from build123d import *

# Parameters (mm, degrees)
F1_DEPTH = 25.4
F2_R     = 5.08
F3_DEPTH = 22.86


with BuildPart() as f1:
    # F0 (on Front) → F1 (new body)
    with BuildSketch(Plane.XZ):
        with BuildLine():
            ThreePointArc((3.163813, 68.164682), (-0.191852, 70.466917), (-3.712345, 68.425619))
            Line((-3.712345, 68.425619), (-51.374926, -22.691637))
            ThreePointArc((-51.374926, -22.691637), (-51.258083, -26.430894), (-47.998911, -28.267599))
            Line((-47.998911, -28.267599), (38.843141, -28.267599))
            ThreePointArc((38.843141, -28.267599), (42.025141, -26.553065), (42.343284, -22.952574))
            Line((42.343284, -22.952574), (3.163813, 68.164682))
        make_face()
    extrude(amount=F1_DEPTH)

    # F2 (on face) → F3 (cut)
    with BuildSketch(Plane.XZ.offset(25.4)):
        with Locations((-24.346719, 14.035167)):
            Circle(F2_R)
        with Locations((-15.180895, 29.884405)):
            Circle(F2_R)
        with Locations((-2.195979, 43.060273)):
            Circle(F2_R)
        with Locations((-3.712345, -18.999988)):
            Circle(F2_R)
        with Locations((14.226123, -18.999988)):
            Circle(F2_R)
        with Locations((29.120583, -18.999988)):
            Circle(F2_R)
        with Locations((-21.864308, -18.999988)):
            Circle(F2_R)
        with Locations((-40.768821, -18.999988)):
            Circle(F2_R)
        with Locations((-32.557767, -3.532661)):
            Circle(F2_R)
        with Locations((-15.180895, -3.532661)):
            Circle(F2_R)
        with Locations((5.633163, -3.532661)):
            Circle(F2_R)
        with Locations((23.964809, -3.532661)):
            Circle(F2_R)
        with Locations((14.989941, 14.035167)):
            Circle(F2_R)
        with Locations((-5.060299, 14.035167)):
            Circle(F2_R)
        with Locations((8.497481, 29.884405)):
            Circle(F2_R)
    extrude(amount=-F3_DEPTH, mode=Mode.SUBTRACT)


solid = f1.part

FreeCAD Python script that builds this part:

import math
import FreeCAD as App
import Part
import Sketcher
Q = App.Units.Quantity

doc = App.newDocument("Part")
params = doc.addObject("Spreadsheet::Sheet", "Params")
for row, (alias, value) in enumerate([
    ("sketch1_radius", "0.15 in"),
    ("pad1_length", "1 in"),
    ("sketch2_diameter", "0.4 in"),
    ("pocket1_length", "0.9 in"),
], start=1):
    params.set(f"A{row}", alias)
    params.set(f"B{row}", "=" + value)
    params.setAlias(f"B{row}", alias)

body = doc.addObject("PartDesign::Body", "Body")

# Sketch on XZ plane
sketch1 = body.newObject("Sketcher::SketchObject", "Sketch")
sketch1.AttachmentSupport = (doc.getObject("XZ_Plane"), [""])
sketch1.MapMode = "FlatFace"
sketch1.addGeometry(Part.ArcOfCircle(Part.Circle(App.Vector(-0.3, 66.7, 0), App.Vector(0, 0, 1), 3.8), math.radians(23), math.radians(152)), False)
sketch1.addGeometry(Part.LineSegment(App.Vector(-3.7, 68.4, 0), App.Vector(-51.4, -22.7, 0)), False)
sketch1.addGeometry(Part.ArcOfCircle(Part.Circle(App.Vector(-48, -24.5, 0), App.Vector(0, 0, 1), 3.8), math.radians(152), math.radians(270)), False)
sketch1.addGeometry(Part.LineSegment(App.Vector(-48, -28.3, 0), App.Vector(38.8, -28.3, 0)), False)
sketch1.addGeometry(Part.ArcOfCircle(Part.Circle(App.Vector(38.8, -24.5, 0), App.Vector(0, 0, 1), 3.8), math.radians(-90), math.radians(23)), False)
sketch1.addGeometry(Part.LineSegment(App.Vector(42.3, -23, 0), App.Vector(3.2, 68.2, 0)), False)
sketch1.addConstraint(Sketcher.Constraint("Tangent", 0, 2, 1, 1))
sketch1.addConstraint(Sketcher.Constraint("Tangent", 1, 2, 2, 1))
sketch1.addConstraint(Sketcher.Constraint("Tangent", 2, 2, 3, 1))
sketch1.addConstraint(Sketcher.Constraint("Tangent", 3, 2, 4, 1))
sketch1.addConstraint(Sketcher.Constraint("Tangent", 4, 2, 5, 1))
sketch1.addConstraint(Sketcher.Constraint("Tangent", 5, 2, 0, 1))
sketch1.addConstraint(Sketcher.Constraint("Horizontal", 3))
sketch1.addConstraint(Sketcher.Constraint("Equal", 0, 2))
sketch1.addConstraint(Sketcher.Constraint("Equal", 2, 4))
sketch1.addConstraint(Sketcher.Constraint("Radius", 0, Q("0.15 in")))
sketch1.addConstraint(Sketcher.Constraint("DistanceX", 3, 1, 3, 2, Q("86.842052 mm")))
sketch1.addConstraint(Sketcher.Constraint("DistanceY", 2, 3, -1, 1, Q("24.457598 mm")))
sketch1.addConstraint(Sketcher.Constraint("DistanceX", 0, 3, -1, 1, Q("0.33633 mm")))
sketch1.addConstraint(Sketcher.Constraint("DistanceX", 2, 3, -1, 1, Q("47.99891 mm")))
sketch1.addConstraint(Sketcher.Constraint("DistanceY", -1, 1, 0, 2, Q("68.425619 mm")))
sketch1.setExpression("Constraints[9]", "Params.sketch1_radius")
pad1 = body.newObject("PartDesign::Pad", "Pad")
pad1.Profile = sketch1
pad1.setExpression("Length", "Params.pad1_length")

# Sketch on XZ plane
sketch2 = body.newObject("Sketcher::SketchObject", "Sketch001")
sketch2.AttachmentSupport = (doc.getObject("XZ_Plane"), [""])
sketch2.MapMode = "FlatFace"
sketch2.AttachmentOffset = App.Placement(App.Vector(0, 0, 1 * 25.4), App.Rotation())
sketch2.addGeometry(Part.Circle(App.Vector(-24, 14, 0), App.Vector(0, 0, 1), 5), False)
sketch2.addGeometry(Part.Circle(App.Vector(-15, 30, 0), App.Vector(0, 0, 1), 5), False)
sketch2.addGeometry(Part.Circle(App.Vector(-2, 43, 0), App.Vector(0, 0, 1), 5), False)
sketch2.addGeometry(Part.Circle(App.Vector(-4, -19, 0), App.Vector(0, 0, 1), 5), False)
sketch2.addGeometry(Part.Circle(App.Vector(14, -19, 0), App.Vector(0, 0, 1), 5), False)
sketch2.addGeometry(Part.Circle(App.Vector(29, -19, 0), App.Vector(0, 0, 1), 5), False)
sketch2.addGeometry(Part.Circle(App.Vector(-22, -19, 0), App.Vector(0, 0, 1), 5), False)
sketch2.addGeometry(Part.Circle(App.Vector(-41, -19, 0), App.Vector(0, 0, 1), 5), False)
sketch2.addGeometry(Part.Circle(App.Vector(-33, -4, 0), App.Vector(0, 0, 1), 5), False)
sketch2.addGeometry(Part.Circle(App.Vector(-15, -4, 0), App.Vector(0, 0, 1), 5), False)
sketch2.addGeometry(Part.Circle(App.Vector(6, -4, 0), App.Vector(0, 0, 1), 5), False)
sketch2.addGeometry(Part.Circle(App.Vector(24, -4, 0), App.Vector(0, 0, 1), 5), False)
sketch2.addGeometry(Part.Circle(App.Vector(15, 14, 0), App.Vector(0, 0, 1), 5), False)
sketch2.addGeometry(Part.Circle(App.Vector(-5, 14, 0), App.Vector(0, 0, 1), 5), False)
sketch2.addGeometry(Part.Circle(App.Vector(8, 30, 0), App.Vector(0, 0, 1), 5), False)
sketch2.addConstraint(Sketcher.Constraint("Equal", 0, 1))
sketch2.addConstraint(Sketcher.Constraint("Equal", 1, 2))
sketch2.addConstraint(Sketcher.Constraint("Equal", 2, 3))
sketch2.addConstraint(Sketcher.Constraint("Equal", 3, 4))
sketch2.addConstraint(Sketcher.Constraint("Equal", 4, 5))
sketch2.addConstraint(Sketcher.Constraint("Equal", 5, 6))
sketch2.addConstraint(Sketcher.Constraint("Equal", 6, 7))
sketch2.addConstraint(Sketcher.Constraint("Equal", 7, 8))
sketch2.addConstraint(Sketcher.Constraint("Equal", 8, 9))
sketch2.addConstraint(Sketcher.Constraint("Equal", 9, 10))
sketch2.addConstraint(Sketcher.Constraint("Equal", 10, 11))
sketch2.addConstraint(Sketcher.Constraint("Equal", 11, 12))
sketch2.addConstraint(Sketcher.Constraint("Equal", 12, 13))
sketch2.addConstraint(Sketcher.Constraint("Equal", 13, 14))
sketch2.addConstraint(Sketcher.Constraint("Horizontal", 3, 3, 4, 3))
sketch2.addConstraint(Sketcher.Constraint("Horizontal", 4, 3, 5, 3))
sketch2.addConstraint(Sketcher.Constraint("Horizontal", 5, 3, 6, 3))
sketch2.addConstraint(Sketcher.Constraint("Horizontal", 6, 3, 7, 3))
sketch2.addConstraint(Sketcher.Constraint("Horizontal", 8, 3, 9, 3))
sketch2.addConstraint(Sketcher.Constraint("Horizontal", 9, 3, 10, 3))
sketch2.addConstraint(Sketcher.Constraint("Horizontal", 10, 3, 11, 3))
sketch2.addConstraint(Sketcher.Constraint("Horizontal", 0, 3, 12, 3))
sketch2.addConstraint(Sketcher.Constraint("Horizontal", 12, 3, 13, 3))
sketch2.addConstraint(Sketcher.Constraint("Horizontal", 1, 3, 14, 3))
sketch2.addConstraint(Sketcher.Constraint("Vertical", 1, 3, 9, 3))
sketch2.addConstraint(Sketcher.Constraint("Diameter", 0, Q("0.4 in")))
sketch2.addConstraint(Sketcher.Constraint("DistanceX", 13, 3, -1, 1, Q("5.060299 mm")))
sketch2.addConstraint(Sketcher.Constraint("DistanceX", 2, 3, 4, 3, Q("16.422102 mm")))
sketch2.addConstraint(Sketcher.Constraint("DistanceX", 0, 3, -1, 1, Q("24.346719 mm")))
sketch2.addConstraint(Sketcher.Constraint("DistanceX", 2, 3, -1, 1, Q("2.195979 mm")))
sketch2.addConstraint(Sketcher.Constraint("DistanceX", 6, 3, -1, 1, Q("21.864308 mm")))
sketch2.addConstraint(Sketcher.Constraint("DistanceX", 7, 3, -1, 1, Q("40.768821 mm")))
sketch2.addConstraint(Sketcher.Constraint("DistanceY", 8, 3, -1, 1, Q("3.532661 mm")))
sketch2.addConstraint(Sketcher.Constraint("DistanceX", -1, 1, 11, 3, Q("23.964809 mm")))
sketch2.addConstraint(Sketcher.Constraint("DistanceX", -1, 1, 12, 3, Q("14.989941 mm")))
sketch2.addConstraint(Sketcher.Constraint("DistanceX", -1, 1, 14, 3, Q("8.497481 mm")))
sketch2.addConstraint(Sketcher.Constraint("DistanceY", 0, 3, 1, 3, Q("15.849238 mm")))
sketch2.addConstraint(Sketcher.Constraint("DistanceY", 1, 3, 2, 3, Q("13.175868 mm")))
sketch2.addConstraint(Sketcher.Constraint("DistanceX", 1, 3, 3, 3, Q("11.46855 mm")))
sketch2.addConstraint(Sketcher.Constraint("DistanceY", 3, 3, 2, 3, Q("62.060261 mm")))
sketch2.addConstraint(Sketcher.Constraint("DistanceX", 3, 3, 4, 3, Q("17.938468 mm")))
sketch2.addConstraint(Sketcher.Constraint("DistanceX", 4, 3, 5, 3, Q("14.89446 mm")))
sketch2.addConstraint(Sketcher.Constraint("DistanceX", 8, 3, 6, 3, Q("10.693459 mm")))
sketch2.addConstraint(Sketcher.Constraint("DistanceX", 10, 3, 4, 3, Q("8.59296 mm")))
sketch2.addConstraint(Sketcher.Constraint("DistanceY", -1, 1, 0, 3, Q("14.035167 mm")))
sketch2.setExpression("Constraints[25]", "Params.sketch2_diameter")
pocket1 = body.newObject("PartDesign::Pocket", "Pocket")
pocket1.Profile = sketch2
pocket1.setExpression("Length", "Params.pocket1_length")

doc.recompute()
